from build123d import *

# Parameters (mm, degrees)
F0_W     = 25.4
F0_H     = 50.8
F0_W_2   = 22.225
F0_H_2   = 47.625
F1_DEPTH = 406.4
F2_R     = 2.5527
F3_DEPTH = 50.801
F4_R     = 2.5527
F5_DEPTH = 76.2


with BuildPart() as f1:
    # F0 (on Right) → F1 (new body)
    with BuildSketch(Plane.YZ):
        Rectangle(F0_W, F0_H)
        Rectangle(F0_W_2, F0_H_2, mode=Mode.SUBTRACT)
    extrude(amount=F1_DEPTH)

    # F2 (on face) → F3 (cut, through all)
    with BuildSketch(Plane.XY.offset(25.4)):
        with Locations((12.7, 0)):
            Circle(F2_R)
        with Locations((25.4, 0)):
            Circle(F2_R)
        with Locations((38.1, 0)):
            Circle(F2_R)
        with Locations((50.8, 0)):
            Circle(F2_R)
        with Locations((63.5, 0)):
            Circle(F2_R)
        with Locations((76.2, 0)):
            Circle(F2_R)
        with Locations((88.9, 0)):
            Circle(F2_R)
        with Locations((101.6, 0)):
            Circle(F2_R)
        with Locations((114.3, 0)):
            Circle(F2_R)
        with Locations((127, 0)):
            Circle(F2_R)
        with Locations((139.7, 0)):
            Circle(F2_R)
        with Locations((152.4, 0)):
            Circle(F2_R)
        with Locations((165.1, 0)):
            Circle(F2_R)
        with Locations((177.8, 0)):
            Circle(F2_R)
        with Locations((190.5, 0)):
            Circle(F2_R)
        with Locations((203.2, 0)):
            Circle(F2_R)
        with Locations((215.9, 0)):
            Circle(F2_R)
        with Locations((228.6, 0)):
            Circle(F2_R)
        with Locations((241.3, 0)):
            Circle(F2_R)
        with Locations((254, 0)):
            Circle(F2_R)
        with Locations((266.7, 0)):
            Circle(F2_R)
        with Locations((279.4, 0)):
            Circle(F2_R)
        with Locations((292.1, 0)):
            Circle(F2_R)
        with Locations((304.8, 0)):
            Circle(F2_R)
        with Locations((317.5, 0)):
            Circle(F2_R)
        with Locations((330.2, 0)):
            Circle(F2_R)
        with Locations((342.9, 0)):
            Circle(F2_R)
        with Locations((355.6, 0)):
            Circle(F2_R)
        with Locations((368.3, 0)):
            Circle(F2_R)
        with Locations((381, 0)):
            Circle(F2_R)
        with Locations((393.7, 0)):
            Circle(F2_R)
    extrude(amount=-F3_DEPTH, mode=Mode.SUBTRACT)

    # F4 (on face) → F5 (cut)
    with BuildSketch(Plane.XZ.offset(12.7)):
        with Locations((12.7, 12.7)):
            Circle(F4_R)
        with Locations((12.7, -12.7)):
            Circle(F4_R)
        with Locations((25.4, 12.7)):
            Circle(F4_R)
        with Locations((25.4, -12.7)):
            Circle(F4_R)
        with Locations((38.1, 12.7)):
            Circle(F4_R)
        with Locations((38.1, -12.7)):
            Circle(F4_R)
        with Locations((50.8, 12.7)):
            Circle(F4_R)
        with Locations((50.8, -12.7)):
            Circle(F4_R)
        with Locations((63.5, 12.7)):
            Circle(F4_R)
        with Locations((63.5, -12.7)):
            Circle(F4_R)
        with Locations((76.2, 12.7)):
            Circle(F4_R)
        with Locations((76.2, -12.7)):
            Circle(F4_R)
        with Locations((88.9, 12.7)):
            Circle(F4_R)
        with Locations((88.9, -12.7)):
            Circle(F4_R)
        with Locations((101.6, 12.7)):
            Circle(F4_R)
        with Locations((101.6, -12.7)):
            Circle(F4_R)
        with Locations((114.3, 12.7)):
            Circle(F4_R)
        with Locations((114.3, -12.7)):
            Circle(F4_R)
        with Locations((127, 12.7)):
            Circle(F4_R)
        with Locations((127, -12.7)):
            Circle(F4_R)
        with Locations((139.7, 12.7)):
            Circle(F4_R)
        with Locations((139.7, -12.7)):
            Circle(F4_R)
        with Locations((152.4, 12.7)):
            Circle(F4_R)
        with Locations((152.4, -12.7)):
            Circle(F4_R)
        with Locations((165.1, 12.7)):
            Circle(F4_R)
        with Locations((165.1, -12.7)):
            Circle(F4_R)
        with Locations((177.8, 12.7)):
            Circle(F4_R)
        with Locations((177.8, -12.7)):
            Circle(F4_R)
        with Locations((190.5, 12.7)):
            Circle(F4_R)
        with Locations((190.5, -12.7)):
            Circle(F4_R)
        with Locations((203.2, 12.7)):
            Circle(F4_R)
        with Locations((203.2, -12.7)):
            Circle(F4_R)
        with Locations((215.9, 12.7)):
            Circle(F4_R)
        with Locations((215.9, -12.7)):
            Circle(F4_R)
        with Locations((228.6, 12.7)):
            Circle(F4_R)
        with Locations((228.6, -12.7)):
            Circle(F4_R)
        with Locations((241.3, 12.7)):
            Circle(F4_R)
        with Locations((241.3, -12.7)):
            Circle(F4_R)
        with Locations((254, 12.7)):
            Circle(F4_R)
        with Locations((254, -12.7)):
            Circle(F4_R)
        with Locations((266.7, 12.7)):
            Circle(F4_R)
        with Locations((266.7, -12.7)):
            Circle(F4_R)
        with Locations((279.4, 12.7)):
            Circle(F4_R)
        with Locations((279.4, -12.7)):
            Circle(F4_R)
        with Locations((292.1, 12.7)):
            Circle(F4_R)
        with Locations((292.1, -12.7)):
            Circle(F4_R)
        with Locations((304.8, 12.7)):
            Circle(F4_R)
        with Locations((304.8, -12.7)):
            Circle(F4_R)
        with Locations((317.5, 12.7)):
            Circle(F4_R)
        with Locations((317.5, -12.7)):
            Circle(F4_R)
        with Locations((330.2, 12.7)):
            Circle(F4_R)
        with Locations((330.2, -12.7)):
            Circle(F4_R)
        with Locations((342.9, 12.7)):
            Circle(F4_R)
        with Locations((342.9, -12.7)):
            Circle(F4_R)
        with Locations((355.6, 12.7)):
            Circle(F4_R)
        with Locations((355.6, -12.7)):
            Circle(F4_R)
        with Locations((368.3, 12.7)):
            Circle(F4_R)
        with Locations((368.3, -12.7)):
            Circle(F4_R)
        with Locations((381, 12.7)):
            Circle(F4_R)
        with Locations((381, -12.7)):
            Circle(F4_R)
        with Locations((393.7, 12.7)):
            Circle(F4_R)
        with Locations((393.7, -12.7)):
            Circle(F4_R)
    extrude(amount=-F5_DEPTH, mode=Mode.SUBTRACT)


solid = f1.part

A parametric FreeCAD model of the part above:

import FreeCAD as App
import Part
import Sketcher

V = App.Vector
Q = App.Units.Quantity


def add_polygon(sketch, points):
    """Adds a closed chain of lines whose ends are joined by coincident constraints."""
    first, n = sketch.GeometryCount, len(points)
    for a, b in zip(points, points[1:] + points[:1]):
        sketch.addGeometry(Part.LineSegment(App.Vector(*a, 0), App.Vector(*b, 0)), False)
    for i in range(n):
        sketch.addConstraint(Sketcher.Constraint("Coincident", first + i, 2, first + (i + 1) % n, 1))

doc = App.newDocument("Part")
body = doc.addObject("PartDesign::Body", "Body")

# Sketch on YZ plane
sketch1 = body.newObject("Sketcher::SketchObject", "Sketch")
sketch1.AttachmentSupport = (doc.getObject("YZ_Plane"), [""])
sketch1.MapMode = "FlatFace"
add_polygon(sketch1, [(-13, 25), (-13, -25), (13, -25), (13, 25)])  # lines 0-3
add_polygon(sketch1, [(11, -24), (-11, -24), (-11, 24), (11, 24)])  # lines 4-7
sketch1.addConstraint(Sketcher.Constraint("Vertical", 0))
sketch1.addConstraint(Sketcher.Constraint("Horizontal", 1))
sketch1.addConstraint(Sketcher.Constraint("Vertical", 2))
sketch1.addConstraint(Sketcher.Constraint("Horizontal", 3))
sketch1.addConstraint(Sketcher.Constraint("Horizontal", 4))
sketch1.addConstraint(Sketcher.Constraint("Vertical", 5))
sketch1.addConstraint(Sketcher.Constraint("Horizontal", 6))
sketch1.addConstraint(Sketcher.Constraint("Vertical", 7))
sketch1.addConstraint(Sketcher.Constraint("Symmetric", 0, 2, 2, 2, -1, 1))
sketch1.addConstraint(Sketcher.Constraint("Symmetric", 4, 2, 6, 2, -1, 1))
sketch1.addConstraint(Sketcher.Constraint("DistanceX", 1, 1, 1, 2, Q("1 in")))
sketch1.addConstraint(Sketcher.Constraint("DistanceY", 0, 2, 0, 1, Q("2 in")))
sketch1.addConstraint(Sketcher.Constraint("DistanceX", 4, 2, 4, 1, Q("0.875 in")))
sketch1.addConstraint(Sketcher.Constraint("DistanceY", 5, 1, 5, 2, Q("1.875 in")))
pad1 = body.newObject("PartDesign::Pad", "Pad")
pad1.Profile = sketch1
pad1.Length = Q("16 in")

# Sketch on XY plane
sketch2 = body.newObject("Sketcher::SketchObject", "Sketch001")
sketch2.AttachmentSupport = (doc.getObject("XY_Plane"), [""])
sketch2.MapMode = "FlatFace"
sketch2.AttachmentOffset = App.Placement(V(0, 0, 1 * 25.4), App.Rotation())
sketch2.addGeometry(Part.Circle(V(12.7, 0, 0), V(0, 0, 1), 2.6), False)
sketch2.addGeometry(Part.Circle(V(25.4, 0, 0), V(0, 0, 1), 2.6), False)
sketch2.addGeometry(Part.Circle(V(38.1, 0, 0), V(0, 0, 1), 2.6), False)
sketch2.addGeometry(Part.Circle(V(50.8, 0, 0), V(0, 0, 1), 2.6), False)
sketch2.addGeometry(Part.Circle(V(63.5, 0, 0), V(0, 0, 1), 2.6), False)
sketch2.addGeometry(Part.Circle(V(76.2, 0, 0), V(0, 0, 1), 2.6), False)
sketch2.addGeometry(Part.Circle(V(88.9, 0, 0), V(0, 0, 1), 2.6), False)
sketch2.addGeometry(Part.Circle(V(101.6, 0, 0), V(0, 0, 1), 2.6), False)
sketch2.addGeometry(Part.Circle(V(114.3, 0, 0), V(0, 0, 1), 2.6), False)
sketch2.addGeometry(Part.Circle(V(127, 0, 0), V(0, 0, 1), 2.6), False)
sketch2.addGeometry(Part.Circle(V(139.7, 0, 0), V(0, 0, 1), 2.6), False)
sketch2.addGeometry(Part.Circle(V(152.4, 0, 0), V(0, 0, 1), 2.6), False)
sketch2.addGeometry(Part.Circle(V(165.1, 0, 0), V(0, 0, 1), 2.6), False)
sketch2.addGeometry(Part.Circle(V(177.8, 0, 0), V(0, 0, 1), 2.6), False)
sketch2.addGeometry(Part.Circle(V(190.5, 0, 0), V(0, 0, 1), 2.6), False)
sketch2.addGeometry(Part.Circle(V(203.2, 0, 0), V(0, 0, 1), 2.6), False)
sketch2.addGeometry(Part.Circle(V(215.9, 0, 0), V(0, 0, 1), 2.6), False)
sketch2.addGeometry(Part.Circle(V(228.6, 0, 0), V(0, 0, 1), 2.6), False)
sketch2.addGeometry(Part.Circle(V(241.3, 0, 0), V(0, 0, 1), 2.6), False)
sketch2.addGeometry(Part.Circle(V(254, 0, 0), V(0, 0, 1), 2.6), False)
sketch2.addGeometry(Part.Circle(V(266.7, 0, 0), V(0, 0, 1), 2.6), False)
sketch2.addGeometry(Part.Circle(V(279.4, 0, 0), V(0, 0, 1), 2.6), False)
sketch2.addGeometry(Part.Circle(V(292.1, 0, 0), V(0, 0, 1), 2.6), False)
sketch2.addGeometry(Part.Circle(V(304.8, 0, 0), V(0, 0, 1), 2.6), False)
sketch2.addGeometry(Part.Circle(V(317.5, 0, 0), V(0, 0, 1), 2.6), False)
sketch2.addGeometry(Part.Circle(V(330.2, 0, 0), V(0, 0, 1), 2.6), False)
sketch2.addGeometry(Part.Circle(V(342.9, 0, 0), V(0, 0, 1), 2.6), False)
sketch2.addGeometry(Part.Circle(V(355.6, 0, 0), V(0, 0, 1), 2.6), False)
sketch2.addGeometry(Part.Circle(V(368.3, 0, 0), V(0, 0, 1), 2.6), False)
sketch2.addGeometry(Part.Circle(V(381, 0, 0), V(0, 0, 1), 2.6), False)
sketch2.addGeometry(Part.Circle(V(393.7, 0, 0), V(0, 0, 1), 2.6), False)
sketch2.addConstraint(Sketcher.Constraint("Equal", 0, 1))
sketch2.addConstraint(Sketcher.Constraint("Equal", 1, 2))
sketch2.addConstraint(Sketcher.Constraint("Equal", 2, 3))
sketch2.addConstraint(Sketcher.Constraint("Equal", 3, 4))
sketch2.addConstraint(Sketcher.Constraint("Equal", 4, 5))
sketch2.addConstraint(Sketcher.Constraint("Equal", 5, 6))
sketch2.addConstraint(Sketcher.Constraint("Equal", 6, 7))
sketch2.addConstraint(Sketcher.Constraint("Equal", 7, 8))
sketch2.addConstraint(Sketcher.Constraint("Equal", 8, 9))
sketch2.addConstraint(Sketcher.Constraint("Equal", 9, 10))
sketch2.addConstraint(Sketcher.Constraint("Equal", 10, 11))
sketch2.addConstraint(Sketcher.Constraint("Equal", 11, 12))
sketch2.addConstraint(Sketcher.Constraint("Equal", 12, 13))
sketch2.addConstraint(Sketcher.Constraint("Equal", 13, 14))
sketch2.addConstraint(Sketcher.Constraint("Equal", 14, 15))
sketch2.addConstraint(Sketcher.Constraint("Equal", 15, 16))
sketch2.addConstraint(Sketcher.Constraint("Equal", 16, 17))
sketch2.addConstraint(Sketcher.Constraint("Equal", 17, 18))
sketch2.addConstraint(Sketcher.Constraint("Equal", 18, 19))
sketch2.addConstraint(Sketcher.Constraint("Equal", 19, 20))
sketch2.addConstraint(Sketcher.Constraint("Equal", 20, 21))
sketch2.addConstraint(Sketcher.Constraint("Equal", 21, 22))
sketch2.addConstraint(Sketcher.Constraint("Equal", 22, 23))
sketch2.addConstraint(Sketcher.Constraint("Equal", 23, 24))
sketch2.addConstraint(Sketcher.Constraint("Equal", 24, 25))
sketch2.addConstraint(Sketcher.Constraint("Equal", 25, 26))
sketch2.addConstraint(Sketcher.Constraint("Equal", 26, 27))
sketch2.addConstraint(Sketcher.Constraint("Equal", 27, 28))
sketch2.addConstraint(Sketcher.Constraint("Equal", 28, 29))
sketch2.addConstraint(Sketcher.Constraint("Equal", 29, 30))
sketch2.addConstraint(Sketcher.Constraint("PointOnObject", 0, 3, -1))
sketch2.addConstraint(Sketcher.Constraint("PointOnObject", 1, 3, -1))
sketch2.addConstraint(Sketcher.Constraint("PointOnObject", 2, 3, -1))
sketch2.addConstraint(Sketcher.Constraint("PointOnObject", 3, 3, -1))
sketch2.addConstraint(Sketcher.Constraint("PointOnObject", 4, 3, -1))
sketch2.addConstraint(Sketcher.Constraint("PointOnObject", 5, 3, -1))
sketch2.addConstraint(Sketcher.Constraint("PointOnObject", 6, 3, -1))
sketch2.addConstraint(Sketcher.Constraint("PointOnObject", 7, 3, -1))
sketch2.addConstraint(Sketcher.Constraint("PointOnObject", 8, 3, -1))
sketch2.addConstraint(Sketcher.Constraint("PointOnObject", 9, 3, -1))
sketch2.addConstraint(Sketcher.Constraint("PointOnObject", 10, 3, -1))
sketch2.addConstraint(Sketcher.Constraint("PointOnObject", 11, 3, -1))
sketch2.addConstraint(Sketcher.Constraint("PointOnObject", 12, 3, -1))
sketch2.addConstraint(Sketcher.Constraint("PointOnObject", 13, 3, -1))
sketch2.addConstraint(Sketcher.Constraint("PointOnObject", 14, 3, -1))
sketch2.addConstraint(Sketcher.Constraint("PointOnObject", 15, 3, -1))
sketch2.addConstraint(Sketcher.Constraint("PointOnObject", 16, 3, -1))
sketch2.addConstraint(Sketcher.Constraint("PointOnObject", 17, 3, -1))
sketch2.addConstraint(Sketcher.Constraint("PointOnObject", 18, 3, -1))
sketch2.addConstraint(Sketcher.Constraint("PointOnObject", 19, 3, -1))
sketch2.addConstraint(Sketcher.Constraint("PointOnObject", 20, 3, -1))
sketch2.addConstraint(Sketcher.Constraint("PointOnObject", 21, 3, -1))
sketch2.addConstraint(Sketcher.Constraint("PointOnObject", 22, 3, -1))
sketch2.addConstraint(Sketcher.Constraint("PointOnObject", 23, 3, -1))
sketch2.addConstraint(Sketcher.Constraint("PointOnObject", 24, 3, -1))
sketch2.addConstraint(Sketcher.Constraint("PointOnObject", 25, 3, -1))
sketch2.addConstraint(Sketcher.Constraint("PointOnObject", 26, 3, -1))
sketch2.addConstraint(Sketcher.Constraint("PointOnObject", 27, 3, -1))
sketch2.addConstraint(Sketcher.Constraint("PointOnObject", 28, 3, -1))
sketch2.addConstraint(Sketcher.Constraint("PointOnObject", 29, 3, -1))
sketch2.addConstraint(Sketcher.Constraint("PointOnObject", 30, 3, -1))
sketch2.addConstraint(Sketcher.Constraint("Diameter", 0, Q("0.201 in")))
sketch2.addConstraint(Sketcher.Constraint("DistanceX", -1, 1, 1, 3, Q("1 in")))
sketch2.addConstraint(Sketcher.Constraint("DistanceX", -1, 1, 3, 3, Q("2 in")))
sketch2.addConstraint(Sketcher.Constraint("DistanceX", -1, 1, 5, 3, Q("3 in")))
sketch2.addConstraint(Sketcher.Constraint("DistanceX", -1, 1, 7, 3, Q("4 in")))
sketch2.addConstraint(Sketcher.Constraint("DistanceX", -1, 1, 9, 3, Q("5 in")))
sketch2.addConstraint(Sketcher.Constraint("DistanceX", -1, 1, 11, 3, Q("6 in")))
sketch2.addConstraint(Sketcher.Constraint("DistanceX", -1, 1, 13, 3, Q("7 in")))
sketch2.addConstraint(Sketcher.Constraint("DistanceX", -1, 1, 15, 3, Q("8 in")))
sketch2.addConstraint(Sketcher.Constraint("DistanceX", -1, 1, 17, 3, Q("9 in")))
sketch2.addConstraint(Sketcher.Constraint("DistanceX", -1, 1, 19, 3, Q("10 in")))
sketch2.addConstraint(Sketcher.Constraint("DistanceX", -1, 1, 21, 3, Q("11 in")))
sketch2.addConstraint(Sketcher.Constraint("DistanceX", -1, 1, 23, 3, Q("12 in")))
sketch2.addConstraint(Sketcher.Constraint("DistanceX", -1, 1, 25, 3, Q("13 in")))
sketch2.addConstraint(Sketcher.Constraint("DistanceX", -1, 1, 27, 3, Q("14 in")))
sketch2.addConstraint(Sketcher.Constraint("DistanceX", -1, 1, 29, 3, Q("15 in")))
sketch2.addConstraint(Sketcher.Constraint("DistanceX", 0, 3, 2, 3, Q("1 in")))
sketch2.addConstraint(Sketcher.Constraint("DistanceX", 2, 3, 4, 3, Q("1 in")))
sketch2.addConstraint(Sketcher.Constraint("DistanceX", 4, 3, 6, 3, Q("1 in")))
sketch2.addConstraint(Sketcher.Constraint("DistanceX", 6, 3, 8, 3, Q("1 in")))
sketch2.addConstraint(Sketcher.Constraint("DistanceX", 8, 3, 10, 3, Q("1 in")))
sketch2.addConstraint(Sketcher.Constraint("DistanceX", 10, 3, 12, 3, Q("1 in")))
sketch2.addConstraint(Sketcher.Constraint("DistanceX", 12, 3, 14, 3, Q("1 in")))
sketch2.addConstraint(Sketcher.Constraint("DistanceX", 14, 3, 16, 3, Q("1 in")))
sketch2.addConstraint(Sketcher.Constraint("DistanceX", 16, 3, 18, 3, Q("1 in")))
sketch2.addConstraint(Sketcher.Constraint("DistanceX", 18, 3, 20, 3, Q("1 in")))
sketch2.addConstraint(Sketcher.Constraint("DistanceX", 20, 3, 22, 3, Q("1 in")))
sketch2.addConstraint(Sketcher.Constraint("DistanceX", 22, 3, 24, 3, Q("1 in")))
sketch2.addConstraint(Sketcher.Constraint("DistanceX", 24, 3, 26, 3, Q("1 in")))
sketch2.addConstraint(Sketcher.Constraint("DistanceX", 26, 3, 28, 3, Q("1 in")))
sketch2.addConstraint(Sketcher.Constraint("DistanceX", 28, 3, 30, 3, Q("1 in")))
sketch2.addConstraint(Sketcher.Constraint("DistanceX", -1, 1, 0, 3, Q("0.5 in")))
pocket1 = body.newObject("PartDesign::Pocket", "Pocket")
pocket1.Profile = sketch2
pocket1.Type = "ThroughAll"

# Sketch on XZ plane
sketch3 = body.newObject("Sketcher::SketchObject", "Sketch002")
sketch3.AttachmentSupport = (doc.getObject("XZ_Plane"), [""])
sketch3.MapMode = "FlatFace"
sketch3.AttachmentOffset = App.Placement(V(0, 0, 0.5 * 25.4), App.Rotation())
sketch3.addGeometry(Part.Circle(V(12.7, 12.7, 0), V(0, 0, 1), 2.6), False)
sketch3.addGeometry(Part.Circle(V(12.7, -12.7, 0), V(0, 0, 1), 2.6), False)
sketch3.addGeometry(Part.Circle(V(25.4, 12.7, 0), V(0, 0, 1), 2.6), False)
sketch3.addGeometry(Part.Circle(V(25.4, -12.7, 0), V(0, 0, 1), 2.6), False)
sketch3.addGeometry(Part.Circle(V(38.1, 12.7, 0), V(0, 0, 1), 2.6), False)
sketch3.addGeometry(Part.Circle(V(38.1, -12.7, 0), V(0, 0, 1), 2.6), False)
sketch3.addGeometry(Part.Circle(V(50.8, 12.7, 0), V(0, 0, 1), 2.6), False)
sketch3.addGeometry(Part.Circle(V(50.8, -12.7, 0), V(0, 0, 1), 2.6), False)
sketch3.addGeometry(Part.Circle(V(63.5, 12.7, 0), V(0, 0, 1), 2.6), False)
sketch3.addGeometry(Part.Circle(V(63.5, -12.7, 0), V(0, 0, 1), 2.6), False)
sketch3.addGeometry(Part.Circle(V(76.2, 12.7, 0), V(0, 0, 1), 2.6), False)
sketch3.addGeometry(Part.Circle(V(76.2, -12.7, 0), V(0, 0, 1), 2.6), False)
sketch3.addGeometry(Part.Circle(V(88.9, 12.7, 0), V(0, 0, 1), 2.6), False)
sketch3.addGeometry(Part.Circle(V(88.9, -12.7, 0), V(0, 0, 1), 2.6), False)
sketch3.addGeometry(Part.Circle(V(101.6, 12.7, 0), V(0, 0, 1), 2.6), False)
sketch3.addGeometry(Part.Circle(V(101.6, -12.7, 0), V(0, 0, 1), 2.6), False)
sketch3.addGeometry(Part.Circle(V(114.3, 12.7, 0), V(0, 0, 1), 2.6), False)
sketch3.addGeometry(Part.Circle(V(114.3, -12.7, 0), V(0, 0, 1), 2.6), False)
sketch3.addGeometry(Part.Circle(V(127, 12.7, 0), V(0, 0, 1), 2.6), False)
sketch3.addGeometry(Part.Circle(V(127, -12.7, 0), V(0, 0, 1), 2.6), False)
sketch3.addGeometry(Part.Circle(V(139.7, 12.7, 0), V(0, 0, 1), 2.6), False)
sketch3.addGeometry(Part.Circle(V(139.7, -12.7, 0), V(0, 0, 1), 2.6), False)
sketch3.addGeometry(Part.Circle(V(152.4, 12.7, 0), V(0, 0, 1), 2.6), False)
sketch3.addGeometry(Part.Circle(V(152.4, -12.7, 0), V(0, 0, 1), 2.6), False)
sketch3.addGeometry(Part.Circle(V(165.1, 12.7, 0), V(0, 0, 1), 2.6), False)
sketch3.addGeometry(Part.Circle(V(165.1, -12.7, 0), V(0, 0, 1), 2.6), False)
sketch3.addGeometry(Part.Circle(V(177.8, 12.7, 0), V(0, 0, 1), 2.6), False)
sketch3.addGeometry(Part.Circle(V(177.8, -12.7, 0), V(0, 0, 1), 2.6), False)
sketch3.addGeometry(Part.Circle(V(190.5, 12.7, 0), V(0, 0, 1), 2.6), False)
sketch3.addGeometry(Part.Circle(V(190.5, -12.7, 0), V(0, 0, 1), 2.6), False)
sketch3.addGeometry(Part.Circle(V(203.2, 12.7, 0), V(0, 0, 1), 2.6), False)
sketch3.addGeometry(Part.Circle(V(203.2, -12.7, 0), V(0, 0, 1), 2.6), False)
sketch3.addGeometry(Part.Circle(V(215.9, 12.7, 0), V(0, 0, 1), 2.6), False)
sketch3.addGeometry(Part.Circle(V(215.9, -12.7, 0), V(0, 0, 1), 2.6), False)
sketch3.addGeometry(Part.Circle(V(228.6, 12.7, 0), V(0, 0, 1), 2.6), False)
sketch3.addGeometry(Part.Circle(V(228.6, -12.7, 0), V(0, 0, 1), 2.6), False)
sketch3.addGeometry(Part.Circle(V(241.3, 12.7, 0), V(0, 0, 1), 2.6), False)
sketch3.addGeometry(Part.Circle(V(241.3, -12.7, 0), V(0, 0, 1), 2.6), False)
sketch3.addGeometry(Part.Circle(V(254, 12.7, 0), V(0, 0, 1), 2.6), False)
sketch3.addGeometry(Part.Circle(V(254, -12.7, 0), V(0, 0, 1), 2.6), False)
sketch3.addGeometry(Part.Circle(V(266.7, 12.7, 0), V(0, 0, 1), 2.6), False)
sketch3.addGeometry(Part.Circle(V(266.7, -12.7, 0), V(0, 0, 1), 2.6), False)
sketch3.addGeometry(Part.Circle(V(279.4, 12.7, 0), V(0, 0, 1), 2.6), False)
sketch3.addGeometry(Part.Circle(V(279.4, -12.7, 0), V(0, 0, 1), 2.6), False)
sketch3.addGeometry(Part.Circle(V(292.1, 12.7, 0), V(0, 0, 1), 2.6), False)
sketch3.addGeometry(Part.Circle(V(292.1, -12.7, 0), V(0, 0, 1), 2.6), False)
sketch3.addGeometry(Part.Circle(V(304.8, 12.7, 0), V(0, 0, 1), 2.6), False)
sketch3.addGeometry(Part.Circle(V(304.8, -12.7, 0), V(0, 0, 1), 2.6), False)
sketch3.addGeometry(Part.Circle(V(317.5, 12.7, 0), V(0, 0, 1), 2.6), False)
sketch3.addGeometry(Part.Circle(V(317.5, -12.7, 0), V(0, 0, 1), 2.6), False)
sketch3.addGeometry(Part.Circle(V(330.2, 12.7, 0), V(0, 0, 1), 2.6), False)
sketch3.addGeometry(Part.Circle(V(330.2, -12.7, 0), V(0, 0, 1), 2.6), False)
sketch3.addGeometry(Part.Circle(V(342.9, 12.7, 0), V(0, 0, 1), 2.6), False)
sketch3.addGeometry(Part.Circle(V(342.9, -12.7, 0), V(0, 0, 1), 2.6), False)
sketch3.addGeometry(Part.Circle(V(355.6, 12.7, 0), V(0, 0, 1), 2.6), False)
sketch3.addGeometry(Part.Circle(V(355.6, -12.7, 0), V(0, 0, 1), 2.6), False)
sketch3.addGeometry(Part.Circle(V(368.3, 12.7, 0), V(0, 0, 1), 2.6), False)
sketch3.addGeometry(Part.Circle(V(368.3, -12.7, 0), V(0, 0, 1), 2.6), False)
sketch3.addGeometry(Part.Circle(V(381, 12.7, 0), V(0, 0, 1), 2.6), False)
sketch3.addGeometry(Part.Circle(V(381, -12.7, 0), V(0, 0, 1), 2.6), False)
sketch3.addGeometry(Part.Circle(V(393.7, 12.7, 0), V(0, 0, 1), 2.6), False)
sketch3.addGeometry(Part.Circle(V(393.7, -12.7, 0), V(0, 0, 1), 2.6), False)
sketch3.addConstraint(Sketcher.Constraint("Equal", 0, 1))
sketch3.addConstraint(Sketcher.Constraint("Equal", 1, 2))
sketch3.addConstraint(Sketcher.Constraint("Equal", 2, 3))
sketch3.addConstraint(Sketcher.Constraint("Equal", 3, 4))
sketch3.addConstraint(Sketcher.Constraint("Equal", 4, 5))
sketch3.addConstraint(Sketcher.Constraint("Equal", 5, 6))
sketch3.addConstraint(Sketcher.Constraint("Equal", 6, 7))
sketch3.addConstraint(Sketcher.Constraint("Equal", 7, 8))
sketch3.addConstraint(Sketcher.Constraint("Equal", 8, 9))
sketch3.addConstraint(Sketcher.Constraint("Equal", 9, 10))
sketch3.addConstraint(Sketcher.Constraint("Equal", 10, 11))
sketch3.addConstraint(Sketcher.Constraint("Equal", 11, 12))
sketch3.addConstraint(Sketcher.Constraint("Equal", 12, 13))
sketch3.addConstraint(Sketcher.Constraint("Equal", 13, 14))
sketch3.addConstraint(Sketcher.Constraint("Equal", 14, 15))
sketch3.addConstraint(Sketcher.Constraint("Equal", 15, 16))
sketch3.addConstraint(Sketcher.Constraint("Equal", 16, 17))
sketch3.addConstraint(Sketcher.Constraint("Equal", 17, 18))
sketch3.addConstraint(Sketcher.Constraint("Equal", 18, 19))
sketch3.addConstraint(Sketcher.Constraint("Equal", 19, 20))
sketch3.addConstraint(Sketcher.Constraint("Equal", 20, 21))
sketch3.addConstraint(Sketcher.Constraint("Equal", 21, 22))
sketch3.addConstraint(Sketcher.Constraint("Equal", 22, 23))
sketch3.addConstraint(Sketcher.Constraint("Equal", 23, 24))
sketch3.addConstraint(Sketcher.Constraint("Equal", 24, 25))
sketch3.addConstraint(Sketcher.Constraint("Equal", 25, 26))
sketch3.addConstraint(Sketcher.Constraint("Equal", 26, 27))
sketch3.addConstraint(Sketcher.Constraint("Equal", 27, 28))
sketch3.addConstraint(Sketcher.Constraint("Equal", 28, 29))
sketch3.addConstraint(Sketcher.Constraint("Equal", 29, 30))
sketch3.addConstraint(Sketcher.Constraint("Equal", 30, 31))
sketch3.addConstraint(Sketcher.Constraint("Equal", 31, 32))
sketch3.addConstraint(Sketcher.Constraint("Equal", 32, 33))
sketch3.addConstraint(Sketcher.Constraint("Equal", 33, 34))
sketch3.addConstraint(Sketcher.Constraint("Equal", 34, 35))
sketch3.addConstraint(Sketcher.Constraint("Equal", 35, 36))
sketch3.addConstraint(Sketcher.Constraint("Equal", 36, 37))
sketch3.addConstraint(Sketcher.Constraint("Equal", 37, 38))
sketch3.addConstraint(Sketcher.Constraint("Equal", 38, 39))
sketch3.addConstraint(Sketcher.Constraint("Equal", 39, 40))
sketch3.addConstraint(Sketcher.Constraint("Equal", 40, 41))
sketch3.addConstraint(Sketcher.Constraint("Equal", 41, 42))
sketch3.addConstraint(Sketcher.Constraint("Equal", 42, 43))
sketch3.addConstraint(Sketcher.Constraint("Equal", 43, 44))
sketch3.addConstraint(Sketcher.Constraint("Equal", 44, 45))
sketch3.addConstraint(Sketcher.Constraint("Equal", 45, 46))
sketch3.addConstraint(Sketcher.Constraint("Equal", 46, 47))
sketch3.addConstraint(Sketcher.Constraint("Equal", 47, 48))
sketch3.addConstraint(Sketcher.Constraint("Equal", 48, 49))
sketch3.addConstraint(Sketcher.Constraint("Equal", 49, 50))
sketch3.addConstraint(Sketcher.Constraint("Equal", 50, 51))
sketch3.addConstraint(Sketcher.Constraint("Equal", 51, 52))
sketch3.addConstraint(Sketcher.Constraint("Equal", 52, 53))
sketch3.addConstraint(Sketcher.Constraint("Equal", 53, 54))
sketch3.addConstraint(Sketcher.Constraint("Equal", 54, 55))
sketch3.addConstraint(Sketcher.Constraint("Equal", 55, 56))
sketch3.addConstraint(Sketcher.Constraint("Equal", 56, 57))
sketch3.addConstraint(Sketcher.Constraint("Equal", 57, 58))
sketch3.addConstraint(Sketcher.Constraint("Equal", 58, 59))
sketch3.addConstraint(Sketcher.Constraint("Equal", 59, 60))
sketch3.addConstraint(Sketcher.Constraint("Equal", 60, 61))
sketch3.addConstraint(Sketcher.Constraint("Symmetric", 0, 3, 1, 3, -1))
sketch3.addConstraint(Sketcher.Constraint("Symmetric", 2, 3, 3, 3, -1))
sketch3.addConstraint(Sketcher.Constraint("Symmetric", 4, 3, 5, 3, -1))
sketch3.addConstraint(Sketcher.Constraint("Symmetric", 6, 3, 7, 3, -1))
sketch3.addConstraint(Sketcher.Constraint("Symmetric", 8, 3, 9, 3, -1))
sketch3.addConstraint(Sketcher.Constraint("Symmetric", 10, 3, 11, 3, -1))
sketch3.addConstraint(Sketcher.Constraint("Symmetric", 12, 3, 13, 3, -1))
sketch3.addConstraint(Sketcher.Constraint("Symmetric", 14, 3, 15, 3, -1))
sketch3.addConstraint(Sketcher.Constraint("Symmetric", 16, 3, 17, 3, -1))
sketch3.addConstraint(Sketcher.Constraint("Symmetric", 18, 3, 19, 3, -1))
sketch3.addConstraint(Sketcher.Constraint("Symmetric", 20, 3, 21, 3, -1))
sketch3.addConstraint(Sketcher.Constraint("Symmetric", 22, 3, 23, 3, -1))
sketch3.addConstraint(Sketcher.Constraint("Symmetric", 24, 3, 25, 3, -1))
sketch3.addConstraint(Sketcher.Constraint("Symmetric", 26, 3, 27, 3, -1))
sketch3.addConstraint(Sketcher.Constraint("Symmetric", 28, 3, 29, 3, -1))
sketch3.addConstraint(Sketcher.Constraint("Symmetric", 30, 3, 31, 3, -1))
sketch3.addConstraint(Sketcher.Constraint("Symmetric", 32, 3, 33, 3, -1))
sketch3.addConstraint(Sketcher.Constraint("Symmetric", 34, 3, 35, 3, -1))
sketch3.addConstraint(Sketcher.Constraint("Symmetric", 36, 3, 37, 3, -1))
sketch3.addConstraint(Sketcher.Constraint("Symmetric", 38, 3, 39, 3, -1))
sketch3.addConstraint(Sketcher.Constraint("Symmetric", 40, 3, 41, 3, -1))
sketch3.addConstraint(Sketcher.Constraint("Symmetric", 42, 3, 43, 3, -1))
sketch3.addConstraint(Sketcher.Constraint("Symmetric", 44, 3, 45, 3, -1))
sketch3.addConstraint(Sketcher.Constraint("Symmetric", 46, 3, 47, 3, -1))
sketch3.addConstraint(Sketcher.Constraint("Symmetric", 48, 3, 49, 3, -1))
sketch3.addConstraint(Sketcher.Constraint("Symmetric", 50, 3, 51, 3, -1))
sketch3.addConstraint(Sketcher.Constraint("Symmetric", 52, 3, 53, 3, -1))
sketch3.addConstraint(Sketcher.Constraint("Symmetric", 54, 3, 55, 3, -1))
sketch3.addConstraint(Sketcher.Constraint("Symmetric", 56, 3, 57, 3, -1))
sketch3.addConstraint(Sketcher.Constraint("Symmetric", 58, 3, 59, 3, -1))
sketch3.addConstraint(Sketcher.Constraint("Symmetric", 60, 3, 61, 3, -1))
sketch3.addConstraint(Sketcher.Constraint("Horizontal", 0, 3, 2, 3))
sketch3.addConstraint(Sketcher.Constraint("Horizontal", 2, 3, 4, 3))
sketch3.addConstraint(Sketcher.Constraint("Horizontal", 4, 3, 6, 3))
sketch3.addConstraint(Sketcher.Constraint("Horizontal", 6, 3, 8, 3))
sketch3.addConstraint(Sketcher.Constraint("Horizontal", 8, 3, 10, 3))
sketch3.addConstraint(Sketcher.Constraint("Horizontal", 10, 3, 12, 3))
sketch3.addConstraint(Sketcher.Constraint("Horizontal", 12, 3, 14, 3))
sketch3.addConstraint(Sketcher.Constraint("Horizontal", 14, 3, 16, 3))
sketch3.addConstraint(Sketcher.Constraint("Horizontal", 16, 3, 18, 3))
sketch3.addConstraint(Sketcher.Constraint("Horizontal", 18, 3, 20, 3))
sketch3.addConstraint(Sketcher.Constraint("Horizontal", 20, 3, 22, 3))
sketch3.addConstraint(Sketcher.Constraint("Horizontal", 22, 3, 24, 3))
sketch3.addConstraint(Sketcher.Constraint("Horizontal", 24, 3, 26, 3))
sketch3.addConstraint(Sketcher.Constraint("Horizontal", 26, 3, 28, 3))
sketch3.addConstraint(Sketcher.Constraint("Horizontal", 28, 3, 30, 3))
sketch3.addConstraint(Sketcher.Constraint("Horizontal", 30, 3, 32, 3))
sketch3.addConstraint(Sketcher.Constraint("Horizontal", 32, 3, 34, 3))
sketch3.addConstraint(Sketcher.Constraint("Horizontal", 34, 3, 36, 3))
sketch3.addConstraint(Sketcher.Constraint("Horizontal", 36, 3, 38, 3))
sketch3.addConstraint(Sketcher.Constraint("Horizontal", 38, 3, 40, 3))
sketch3.addConstraint(Sketcher.Constraint("Horizontal", 40, 3, 42, 3))
sketch3.addConstraint(Sketcher.Constraint("Horizontal", 42, 3, 44, 3))
sketch3.addConstraint(Sketcher.Constraint("Horizontal", 44, 3, 46, 3))
sketch3.addConstraint(Sketcher.Constraint("Horizontal", 46, 3, 48, 3))
sketch3.addConstraint(Sketcher.Constraint("Horizontal", 48, 3, 50, 3))
sketch3.addConstraint(Sketcher.Constraint("Horizontal", 50, 3, 52, 3))
sketch3.addConstraint(Sketcher.Constraint("Horizontal", 52, 3, 54, 3))
sketch3.addConstraint(Sketcher.Constraint("Horizontal", 54, 3, 56, 3))
sketch3.addConstraint(Sketcher.Constraint("Horizontal", 56, 3, 58, 3))
sketch3.addConstraint(Sketcher.Constraint("Horizontal", 58, 3, 60, 3))
sketch3.addConstraint(Sketcher.Constraint("Diameter", 0, Q("0.201 in")))
sketch3.addConstraint(Sketcher.Constraint("DistanceX", -1, 1, 2, 3, Q("1 in")))
sketch3.addConstraint(Sketcher.Constraint("DistanceX", -1, 1, 6, 3, Q("2 in")))
sketch3.addConstraint(Sketcher.Constraint("DistanceX", -1, 1, 10, 3, Q("3 in")))
sketch3.addConstraint(Sketcher.Constraint("DistanceX", -1, 1, 14, 3, Q("4 in")))
sketch3.addConstraint(Sketcher.Constraint("DistanceX", -1, 1, 18, 3, Q("5 in")))
sketch3.addConstraint(Sketcher.Constraint("DistanceX", -1, 1, 22, 3, Q("6 in")))
sketch3.addConstraint(Sketcher.Constraint("DistanceX", -1, 1, 26, 3, Q("7 in")))
sketch3.addConstraint(Sketcher.Constraint("DistanceX", -1, 1, 30, 3, Q("8 in")))
sketch3.addConstraint(Sketcher.Constraint("DistanceX", -1, 1, 34, 3, Q("9 in")))
sketch3.addConstraint(Sketcher.Constraint("DistanceX", -1, 1, 38, 3, Q("10 in")))
sketch3.addConstraint(Sketcher.Constraint("DistanceX", -1, 1, 42, 3, Q("11 in")))
sketch3.addConstraint(Sketcher.Constraint("DistanceX", -1, 1, 46, 3, Q("12 in")))
sketch3.addConstraint(Sketcher.Constraint("DistanceX", -1, 1, 50, 3, Q("13 in")))
sketch3.addConstraint(Sketcher.Constraint("DistanceX", -1, 1, 54, 3, Q("14 in")))
sketch3.addConstraint(Sketcher.Constraint("DistanceX", -1, 1, 58, 3, Q("15 in")))
sketch3.addConstraint(Sketcher.Constraint("DistanceX", -1, 1, 0, 3, Q("0.5 in")))
sketch3.addConstraint(Sketcher.Constraint("DistanceY", -1, 1, 0, 3, Q("0.5 in")))
sketch3.addConstraint(Sketcher.Constraint("DistanceX", -1, 1, 4, 3, Q("1.5 in")))
sketch3.addConstraint(Sketcher.Constraint("DistanceX", -1, 1, 8, 3, Q("2.5 in")))
sketch3.addConstraint(Sketcher.Constraint("DistanceX", -1, 1, 12, 3, Q("3.5 in")))
sketch3.addConstraint(Sketcher.Constraint("DistanceX", -1, 1, 16, 3, Q("4.5 in")))
sketch3.addConstraint(Sketcher.Constraint("DistanceX", -1, 1, 20, 3, Q("5.5 in")))
sketch3.addConstraint(Sketcher.Constraint("DistanceX", -1, 1, 24, 3, Q("6.5 in")))
sketch3.addConstraint(Sketcher.Constraint("DistanceX", -1, 1, 28, 3, Q("7.5 in")))
sketch3.addConstraint(Sketcher.Constraint("DistanceX", -1, 1, 32, 3, Q("8.5 in")))
sketch3.addConstraint(Sketcher.Constraint("DistanceX", -1, 1, 36, 3, Q("9.5 in")))
sketch3.addConstraint(Sketcher.Constraint("DistanceX", -1, 1, 40, 3, Q("10.5 in")))
sketch3.addConstraint(Sketcher.Constraint("DistanceX", -1, 1, 44, 3, Q("11.5 in")))
sketch3.addConstraint(Sketcher.Constraint("DistanceX", -1, 1, 48, 3, Q("12.5 in")))
sketch3.addConstraint(Sketcher.Constraint("DistanceX", -1, 1, 52, 3, Q("13.5 in")))
sketch3.addConstraint(Sketcher.Constraint("DistanceX", -1, 1, 56, 3, Q("14.5 in")))
sketch3.addConstraint(Sketcher.Constraint("DistanceX", -1, 1, 60, 3, Q("15.5 in")))
pocket2 = body.newObject("PartDesign::Pocket", "Pocket001")
pocket2.Profile = sketch3
pocket2.Length = Q("3 in")

doc.recompute()
